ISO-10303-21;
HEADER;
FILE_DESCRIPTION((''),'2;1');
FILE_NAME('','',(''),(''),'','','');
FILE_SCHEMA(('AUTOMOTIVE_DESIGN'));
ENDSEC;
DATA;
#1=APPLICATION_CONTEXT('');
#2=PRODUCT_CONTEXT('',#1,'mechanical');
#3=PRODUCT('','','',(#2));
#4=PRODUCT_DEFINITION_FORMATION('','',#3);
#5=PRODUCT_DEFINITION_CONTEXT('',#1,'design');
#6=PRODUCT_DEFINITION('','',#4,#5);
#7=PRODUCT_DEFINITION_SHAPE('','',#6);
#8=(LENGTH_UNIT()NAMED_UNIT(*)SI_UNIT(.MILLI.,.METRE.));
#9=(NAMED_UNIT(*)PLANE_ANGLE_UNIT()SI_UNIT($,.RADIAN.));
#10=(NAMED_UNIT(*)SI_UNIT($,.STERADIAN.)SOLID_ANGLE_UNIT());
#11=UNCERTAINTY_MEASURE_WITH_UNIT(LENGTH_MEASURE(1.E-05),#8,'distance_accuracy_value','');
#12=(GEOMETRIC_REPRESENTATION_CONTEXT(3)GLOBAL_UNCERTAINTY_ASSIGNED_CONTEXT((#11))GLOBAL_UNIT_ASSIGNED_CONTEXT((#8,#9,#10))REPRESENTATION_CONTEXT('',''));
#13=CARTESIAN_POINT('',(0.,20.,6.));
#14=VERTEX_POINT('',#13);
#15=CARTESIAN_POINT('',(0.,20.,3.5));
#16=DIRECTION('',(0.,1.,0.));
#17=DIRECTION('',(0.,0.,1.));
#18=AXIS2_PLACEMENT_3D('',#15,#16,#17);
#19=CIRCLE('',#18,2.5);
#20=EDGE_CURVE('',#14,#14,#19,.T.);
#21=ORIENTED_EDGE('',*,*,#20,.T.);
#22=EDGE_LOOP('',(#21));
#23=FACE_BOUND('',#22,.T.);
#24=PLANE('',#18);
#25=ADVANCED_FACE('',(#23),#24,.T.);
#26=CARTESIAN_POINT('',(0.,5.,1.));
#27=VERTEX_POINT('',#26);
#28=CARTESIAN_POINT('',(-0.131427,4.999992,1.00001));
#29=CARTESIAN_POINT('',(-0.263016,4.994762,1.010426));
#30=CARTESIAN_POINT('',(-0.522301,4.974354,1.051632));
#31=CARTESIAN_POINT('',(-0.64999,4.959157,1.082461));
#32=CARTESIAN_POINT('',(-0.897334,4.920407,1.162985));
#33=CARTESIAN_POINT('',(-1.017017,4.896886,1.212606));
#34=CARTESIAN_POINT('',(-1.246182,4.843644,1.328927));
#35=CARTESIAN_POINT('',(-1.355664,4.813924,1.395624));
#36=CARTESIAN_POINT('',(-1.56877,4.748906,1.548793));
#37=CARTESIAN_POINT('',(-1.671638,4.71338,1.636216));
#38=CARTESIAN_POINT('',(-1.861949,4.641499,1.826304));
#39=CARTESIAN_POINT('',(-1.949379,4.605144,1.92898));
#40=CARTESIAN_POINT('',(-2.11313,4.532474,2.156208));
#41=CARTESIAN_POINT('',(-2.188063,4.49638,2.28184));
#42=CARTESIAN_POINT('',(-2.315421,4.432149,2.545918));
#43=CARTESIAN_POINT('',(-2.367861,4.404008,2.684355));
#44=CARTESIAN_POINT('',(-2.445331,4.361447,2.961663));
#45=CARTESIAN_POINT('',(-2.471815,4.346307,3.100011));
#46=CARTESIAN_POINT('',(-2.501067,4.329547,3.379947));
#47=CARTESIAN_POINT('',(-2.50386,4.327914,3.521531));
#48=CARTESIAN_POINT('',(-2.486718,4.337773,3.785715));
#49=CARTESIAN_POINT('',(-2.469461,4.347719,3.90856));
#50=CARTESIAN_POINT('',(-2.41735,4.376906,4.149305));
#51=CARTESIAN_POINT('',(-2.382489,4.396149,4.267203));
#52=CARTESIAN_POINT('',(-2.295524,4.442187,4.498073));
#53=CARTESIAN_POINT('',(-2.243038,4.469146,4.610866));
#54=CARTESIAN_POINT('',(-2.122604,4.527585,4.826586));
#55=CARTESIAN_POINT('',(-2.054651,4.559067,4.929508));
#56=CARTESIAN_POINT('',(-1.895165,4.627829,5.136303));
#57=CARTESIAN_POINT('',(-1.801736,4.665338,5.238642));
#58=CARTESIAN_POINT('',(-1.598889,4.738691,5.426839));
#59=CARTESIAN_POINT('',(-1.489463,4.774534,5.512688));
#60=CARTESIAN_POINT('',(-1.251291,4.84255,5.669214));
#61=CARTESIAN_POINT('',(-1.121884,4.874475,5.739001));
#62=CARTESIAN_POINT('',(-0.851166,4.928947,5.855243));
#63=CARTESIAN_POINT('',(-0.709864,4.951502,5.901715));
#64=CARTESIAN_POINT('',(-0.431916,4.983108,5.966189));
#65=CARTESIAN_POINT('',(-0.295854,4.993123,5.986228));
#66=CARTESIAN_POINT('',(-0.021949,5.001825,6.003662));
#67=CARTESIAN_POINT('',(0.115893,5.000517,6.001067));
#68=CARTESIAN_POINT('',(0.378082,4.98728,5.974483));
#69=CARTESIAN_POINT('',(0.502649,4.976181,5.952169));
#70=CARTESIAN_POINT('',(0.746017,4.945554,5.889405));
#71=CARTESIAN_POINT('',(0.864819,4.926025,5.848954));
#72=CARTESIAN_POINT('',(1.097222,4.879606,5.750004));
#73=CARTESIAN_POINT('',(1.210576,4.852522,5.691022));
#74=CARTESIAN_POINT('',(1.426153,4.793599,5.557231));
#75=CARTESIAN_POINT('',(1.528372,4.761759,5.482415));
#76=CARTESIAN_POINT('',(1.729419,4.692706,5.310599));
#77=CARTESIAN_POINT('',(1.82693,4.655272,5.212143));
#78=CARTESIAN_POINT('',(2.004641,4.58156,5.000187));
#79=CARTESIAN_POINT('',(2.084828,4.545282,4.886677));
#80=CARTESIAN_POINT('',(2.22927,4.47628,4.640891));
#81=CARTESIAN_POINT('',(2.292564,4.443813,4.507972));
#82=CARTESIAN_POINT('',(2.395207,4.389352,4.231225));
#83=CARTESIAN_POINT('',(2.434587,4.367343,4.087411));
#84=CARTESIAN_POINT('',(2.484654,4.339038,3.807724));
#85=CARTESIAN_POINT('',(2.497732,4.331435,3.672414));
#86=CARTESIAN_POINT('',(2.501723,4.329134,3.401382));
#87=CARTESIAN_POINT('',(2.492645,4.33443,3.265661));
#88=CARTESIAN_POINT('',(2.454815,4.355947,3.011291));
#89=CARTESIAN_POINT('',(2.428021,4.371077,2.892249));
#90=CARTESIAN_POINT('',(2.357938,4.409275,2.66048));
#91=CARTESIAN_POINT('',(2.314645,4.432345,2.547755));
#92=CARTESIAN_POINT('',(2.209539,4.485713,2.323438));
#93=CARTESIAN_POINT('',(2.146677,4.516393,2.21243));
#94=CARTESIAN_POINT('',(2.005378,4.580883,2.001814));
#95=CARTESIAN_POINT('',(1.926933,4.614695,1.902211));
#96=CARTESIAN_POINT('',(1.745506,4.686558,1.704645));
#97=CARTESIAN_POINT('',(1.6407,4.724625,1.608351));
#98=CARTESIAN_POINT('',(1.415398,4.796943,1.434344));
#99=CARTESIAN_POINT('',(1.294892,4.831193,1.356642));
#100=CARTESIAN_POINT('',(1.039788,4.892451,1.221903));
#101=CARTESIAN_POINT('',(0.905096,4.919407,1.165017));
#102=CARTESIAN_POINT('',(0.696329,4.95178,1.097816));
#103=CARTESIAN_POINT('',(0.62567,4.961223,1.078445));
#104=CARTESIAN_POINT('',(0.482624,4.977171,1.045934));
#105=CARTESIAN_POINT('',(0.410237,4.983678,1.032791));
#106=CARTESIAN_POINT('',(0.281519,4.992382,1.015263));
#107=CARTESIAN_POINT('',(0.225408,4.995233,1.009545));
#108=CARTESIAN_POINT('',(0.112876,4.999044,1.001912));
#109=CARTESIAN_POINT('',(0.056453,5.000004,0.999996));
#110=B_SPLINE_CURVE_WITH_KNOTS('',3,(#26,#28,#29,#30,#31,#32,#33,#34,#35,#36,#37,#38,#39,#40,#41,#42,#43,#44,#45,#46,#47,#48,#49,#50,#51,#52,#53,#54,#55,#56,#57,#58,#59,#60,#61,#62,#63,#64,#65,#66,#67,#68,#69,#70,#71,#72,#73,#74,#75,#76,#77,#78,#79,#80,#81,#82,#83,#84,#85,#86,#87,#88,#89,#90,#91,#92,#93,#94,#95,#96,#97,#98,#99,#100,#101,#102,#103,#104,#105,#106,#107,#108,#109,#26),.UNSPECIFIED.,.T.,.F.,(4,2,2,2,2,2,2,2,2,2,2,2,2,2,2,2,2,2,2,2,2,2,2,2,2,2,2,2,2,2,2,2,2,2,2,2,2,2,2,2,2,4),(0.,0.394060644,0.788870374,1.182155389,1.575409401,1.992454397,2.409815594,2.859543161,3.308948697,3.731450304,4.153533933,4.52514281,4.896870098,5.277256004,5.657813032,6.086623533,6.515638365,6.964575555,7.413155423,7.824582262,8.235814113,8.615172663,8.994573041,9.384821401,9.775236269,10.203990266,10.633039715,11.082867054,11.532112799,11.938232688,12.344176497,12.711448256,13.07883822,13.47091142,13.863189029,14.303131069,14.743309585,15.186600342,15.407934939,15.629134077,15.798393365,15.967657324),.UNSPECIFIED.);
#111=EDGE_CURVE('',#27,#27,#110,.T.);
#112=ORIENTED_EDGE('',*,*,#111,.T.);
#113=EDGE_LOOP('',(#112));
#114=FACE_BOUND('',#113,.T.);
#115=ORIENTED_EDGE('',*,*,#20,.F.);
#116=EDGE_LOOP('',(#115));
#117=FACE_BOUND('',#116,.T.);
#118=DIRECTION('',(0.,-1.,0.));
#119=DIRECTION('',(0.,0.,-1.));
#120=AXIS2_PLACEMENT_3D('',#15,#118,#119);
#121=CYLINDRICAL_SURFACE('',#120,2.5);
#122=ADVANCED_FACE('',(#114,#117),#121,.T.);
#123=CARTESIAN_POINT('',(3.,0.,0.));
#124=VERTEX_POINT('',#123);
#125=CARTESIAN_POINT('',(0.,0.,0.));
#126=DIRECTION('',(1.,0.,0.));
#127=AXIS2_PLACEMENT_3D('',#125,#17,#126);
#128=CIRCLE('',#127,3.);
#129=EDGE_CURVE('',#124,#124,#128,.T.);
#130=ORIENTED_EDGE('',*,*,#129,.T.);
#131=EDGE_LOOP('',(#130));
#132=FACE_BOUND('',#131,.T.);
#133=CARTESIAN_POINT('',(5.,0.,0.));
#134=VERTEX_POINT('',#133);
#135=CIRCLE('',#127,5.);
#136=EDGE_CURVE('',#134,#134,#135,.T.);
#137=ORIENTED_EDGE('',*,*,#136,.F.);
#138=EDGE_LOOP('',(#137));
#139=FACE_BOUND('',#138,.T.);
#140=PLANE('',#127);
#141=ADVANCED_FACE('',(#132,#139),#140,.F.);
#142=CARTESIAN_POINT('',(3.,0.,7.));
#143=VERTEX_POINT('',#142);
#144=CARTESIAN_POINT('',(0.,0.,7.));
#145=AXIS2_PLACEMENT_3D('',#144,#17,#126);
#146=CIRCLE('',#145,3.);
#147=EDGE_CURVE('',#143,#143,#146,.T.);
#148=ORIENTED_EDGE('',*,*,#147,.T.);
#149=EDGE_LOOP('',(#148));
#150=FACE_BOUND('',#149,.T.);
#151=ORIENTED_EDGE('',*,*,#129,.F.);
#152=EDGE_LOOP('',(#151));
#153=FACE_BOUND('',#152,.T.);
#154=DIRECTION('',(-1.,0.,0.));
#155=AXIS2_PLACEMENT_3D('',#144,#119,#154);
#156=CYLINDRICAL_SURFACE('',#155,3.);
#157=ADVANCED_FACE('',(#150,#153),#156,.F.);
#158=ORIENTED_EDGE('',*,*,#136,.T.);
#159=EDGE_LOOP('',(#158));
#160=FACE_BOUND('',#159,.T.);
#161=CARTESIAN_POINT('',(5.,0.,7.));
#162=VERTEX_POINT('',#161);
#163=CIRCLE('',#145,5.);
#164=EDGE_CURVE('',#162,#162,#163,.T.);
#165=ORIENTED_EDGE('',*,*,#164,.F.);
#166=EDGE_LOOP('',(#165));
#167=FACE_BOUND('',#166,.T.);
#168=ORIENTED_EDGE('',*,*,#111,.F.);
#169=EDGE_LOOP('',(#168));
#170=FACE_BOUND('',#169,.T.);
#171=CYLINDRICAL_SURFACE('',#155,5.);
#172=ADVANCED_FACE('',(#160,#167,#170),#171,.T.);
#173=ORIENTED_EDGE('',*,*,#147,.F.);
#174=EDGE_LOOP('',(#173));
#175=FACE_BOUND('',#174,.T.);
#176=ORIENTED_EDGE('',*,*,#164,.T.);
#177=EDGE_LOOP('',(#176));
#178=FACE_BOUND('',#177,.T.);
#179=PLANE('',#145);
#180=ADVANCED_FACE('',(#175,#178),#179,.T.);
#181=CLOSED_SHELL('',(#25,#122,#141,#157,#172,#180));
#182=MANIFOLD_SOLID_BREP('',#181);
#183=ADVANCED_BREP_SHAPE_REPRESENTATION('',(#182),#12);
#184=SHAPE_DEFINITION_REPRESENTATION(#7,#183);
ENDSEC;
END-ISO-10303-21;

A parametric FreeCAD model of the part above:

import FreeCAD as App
import Part
import Sketcher

V = App.Vector
Q = App.Units.Quantity

doc = App.newDocument("Part")
params = doc.addObject("Spreadsheet::Sheet", "Params")
for row, (alias, value) in enumerate([
    ("sketch1_diameter", "10 mm"),
    ("sketch1_diameter2", "6 mm"),
    ("pad1_length", "7 mm"),
    ("sketch2_diameter", "5 mm"),
    ("pad2_length", "17 mm"),
], start=1):
    params.set(f"A{row}", alias)
    params.set(f"B{row}", "=" + value)
    params.setAlias(f"B{row}", alias)

body = doc.addObject("PartDesign::Body", "Body")

# Sketch on XY plane
sketch1 = doc.addObject("Sketcher::SketchObject", "Sketch")
body.addObject(sketch1)
sketch1.AttachmentSupport = (doc.XY_Plane, [""])
sketch1.MapMode = "FlatFace"
sketch1.addGeometry(Part.Circle(V(0, 0, 0), V(0, 0, 1), 5), False)
sketch1.addGeometry(Part.Circle(V(0, 0, 0), V(0, 0, 1), 3), False)
sketch1.addConstraint(Sketcher.Constraint("Coincident", 0, 3, -1, 1))
sketch1.addConstraint(Sketcher.Constraint("Coincident", 1, 3, -1, 1))
sketch1.addConstraint(Sketcher.Constraint("Diameter", 0, Q("10 mm")))
sketch1.addConstraint(Sketcher.Constraint("Diameter", 1, Q("6 mm")))
sketch1.setExpression("Constraints[2]", "Params.sketch1_diameter")
sketch1.setExpression("Constraints[3]", "Params.sketch1_diameter2")
pad1 = doc.addObject("PartDesign::Pad", "Pad")
body.addObject(pad1)
pad1.Profile = sketch1
pad1.setExpression("Length", "Params.pad1_length")

# Sketch on XZ plane
sketch2 = doc.addObject("Sketcher::SketchObject", "Sketch001")
body.addObject(sketch2)
sketch2.AttachmentSupport = (doc.XZ_Plane, [""])
sketch2.MapMode = "FlatFace"
sketch2.AttachmentOffset = App.Placement(V(0, 0, -3), App.Rotation())
sketch2.addGeometry(Part.Circle(V(0, 3.5, 0), V(0, 0, 1), 2.5), False)
sketch2.addConstraint(Sketcher.Constraint("PointOnObject", 0, 3, -2))
sketch2.addConstraint(Sketcher.Constraint("Diameter", 0, Q("5 mm")))
sketch2.addConstraint(Sketcher.Constraint("DistanceY", -1, 1, 0, 3, Q("3.5 mm")))
sketch2.setExpression("Constraints[1]", "Params.sketch2_diameter")
pad2 = doc.addObject("PartDesign::Pad", "Pad001")
body.addObject(pad2)
pad2.Profile = sketch2
pad2.setExpression("Length", "Params.pad2_length")
pad2.Reversed = True

doc.recompute()
